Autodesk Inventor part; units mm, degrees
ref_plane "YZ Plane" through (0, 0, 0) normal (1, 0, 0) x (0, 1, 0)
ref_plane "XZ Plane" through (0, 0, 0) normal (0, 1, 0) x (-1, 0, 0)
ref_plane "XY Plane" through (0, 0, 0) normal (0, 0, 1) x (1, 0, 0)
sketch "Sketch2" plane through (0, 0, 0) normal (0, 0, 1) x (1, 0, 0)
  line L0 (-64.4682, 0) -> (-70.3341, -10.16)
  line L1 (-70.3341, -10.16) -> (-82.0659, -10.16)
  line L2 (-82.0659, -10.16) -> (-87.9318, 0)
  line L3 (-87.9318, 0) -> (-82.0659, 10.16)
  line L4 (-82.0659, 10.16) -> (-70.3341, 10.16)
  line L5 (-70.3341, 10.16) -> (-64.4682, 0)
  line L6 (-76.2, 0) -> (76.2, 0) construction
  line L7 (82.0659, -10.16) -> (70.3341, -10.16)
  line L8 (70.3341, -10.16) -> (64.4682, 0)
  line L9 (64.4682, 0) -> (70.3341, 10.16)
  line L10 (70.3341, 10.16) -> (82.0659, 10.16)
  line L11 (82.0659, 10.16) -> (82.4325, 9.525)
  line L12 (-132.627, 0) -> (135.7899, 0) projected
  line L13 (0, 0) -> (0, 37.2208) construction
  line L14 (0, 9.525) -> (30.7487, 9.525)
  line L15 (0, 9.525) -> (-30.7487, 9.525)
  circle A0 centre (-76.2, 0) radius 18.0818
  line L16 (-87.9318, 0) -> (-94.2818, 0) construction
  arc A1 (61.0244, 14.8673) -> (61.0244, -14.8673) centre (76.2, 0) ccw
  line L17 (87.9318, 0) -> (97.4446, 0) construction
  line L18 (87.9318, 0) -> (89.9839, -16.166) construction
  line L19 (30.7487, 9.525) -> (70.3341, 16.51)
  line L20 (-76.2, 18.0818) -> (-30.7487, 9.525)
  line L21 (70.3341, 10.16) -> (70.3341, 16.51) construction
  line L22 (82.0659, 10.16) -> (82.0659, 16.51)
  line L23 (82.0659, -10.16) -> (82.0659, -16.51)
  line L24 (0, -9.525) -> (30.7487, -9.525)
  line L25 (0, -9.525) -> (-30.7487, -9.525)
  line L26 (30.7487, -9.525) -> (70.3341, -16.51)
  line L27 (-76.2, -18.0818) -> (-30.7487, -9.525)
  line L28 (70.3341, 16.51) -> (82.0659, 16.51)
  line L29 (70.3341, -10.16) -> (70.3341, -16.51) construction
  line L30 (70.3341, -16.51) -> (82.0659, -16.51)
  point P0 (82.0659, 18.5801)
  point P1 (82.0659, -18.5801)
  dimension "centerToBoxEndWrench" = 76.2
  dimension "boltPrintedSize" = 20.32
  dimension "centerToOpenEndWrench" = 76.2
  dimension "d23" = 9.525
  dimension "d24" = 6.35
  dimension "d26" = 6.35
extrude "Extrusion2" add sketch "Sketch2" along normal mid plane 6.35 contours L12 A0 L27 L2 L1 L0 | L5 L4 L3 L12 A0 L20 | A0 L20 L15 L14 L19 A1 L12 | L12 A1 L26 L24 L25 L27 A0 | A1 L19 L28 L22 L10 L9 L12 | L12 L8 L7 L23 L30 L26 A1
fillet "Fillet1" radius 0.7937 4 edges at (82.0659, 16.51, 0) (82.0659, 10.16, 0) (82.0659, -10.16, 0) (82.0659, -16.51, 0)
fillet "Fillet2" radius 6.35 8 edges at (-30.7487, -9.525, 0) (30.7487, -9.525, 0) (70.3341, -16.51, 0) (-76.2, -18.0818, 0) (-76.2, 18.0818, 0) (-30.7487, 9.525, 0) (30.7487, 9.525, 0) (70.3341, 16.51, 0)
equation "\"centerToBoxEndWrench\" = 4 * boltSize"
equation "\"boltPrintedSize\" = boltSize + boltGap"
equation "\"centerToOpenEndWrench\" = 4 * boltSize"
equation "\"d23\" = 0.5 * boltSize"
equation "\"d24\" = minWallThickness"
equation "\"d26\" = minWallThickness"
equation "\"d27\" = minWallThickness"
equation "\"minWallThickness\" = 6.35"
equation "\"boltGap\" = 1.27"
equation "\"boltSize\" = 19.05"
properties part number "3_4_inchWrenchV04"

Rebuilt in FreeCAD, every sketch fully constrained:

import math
import FreeCAD as App
import Part
import Sketcher
Q = App.Units.Quantity


def edges_at(feature, points):
    """Names of the edges that pass closest to the given points."""
    edges = feature.Shape.Edges
    near = lambda p: min(range(len(edges)), key=lambda i: edges[i].distToShape(Part.Vertex(*p))[0])
    return sorted({f"Edge{near(p) + 1}" for p in points})

doc = App.newDocument("Part")
params = doc.addObject("Spreadsheet::Sheet", "Params")
for row, (alias, value) in enumerate([
    ("sketch1_height", "0.25 in"),
    ("pad1_length", "0.25 in"),
    ("fillet_radius", "0.031248 in"),
    ("fillet2_radius", "0.25 in"),
], start=1):
    params.set(f"A{row}", alias)
    params.set(f"B{row}", "=" + value)
    params.setAlias(f"B{row}", alias)

body = doc.addObject("PartDesign::Body", "Body")

sketch1 = body.newObject("Sketcher::SketchObject", "Sketch")
sketch1.AttachmentSupport = (doc.getObject("XY_Plane"), [""])
sketch1.MapMode = "FlatFace"
sketch1.addGeometry(Part.LineSegment(App.Vector(-76.2, -18.0818, 0), App.Vector(-30.7487, -9.525, 0)), False)
sketch1.addGeometry(Part.LineSegment(App.Vector(-30.7487, -9.525, 0), App.Vector(30.7487, -9.525, 0)), False)
sketch1.addGeometry(Part.LineSegment(App.Vector(30.7487, -9.525, 0), App.Vector(70.3341, -16.51, 0)), False)
sketch1.addGeometry(Part.LineSegment(App.Vector(70.3341, -16.51, 0), App.Vector(82.0659, -16.51, 0)), False)
sketch1.addGeometry(Part.LineSegment(App.Vector(82.0659, -16.51, 0), App.Vector(82.0659, -10.16, 0)), False)
sketch1.addGeometry(Part.LineSegment(App.Vector(82.0659, -10.16, 0), App.Vector(70.3341, -10.16, 0)), False)
sketch1.addGeometry(Part.LineSegment(App.Vector(70.3341, -10.16, 0), App.Vector(64.4682, 0, 0)), False)
sketch1.addGeometry(Part.LineSegment(App.Vector(64.4682, 0, 0), App.Vector(70.3341, 10.16, 0)), False)
sketch1.addGeometry(Part.LineSegment(App.Vector(70.3341, 10.16, 0), App.Vector(82.0659, 10.16, 0)), False)
sketch1.addGeometry(Part.LineSegment(App.Vector(82.0659, 10.16, 0), App.Vector(82.0659, 16.51, 0)), False)
sketch1.addGeometry(Part.LineSegment(App.Vector(82.0659, 16.51, 0), App.Vector(70.3341, 16.51, 0)), False)
sketch1.addGeometry(Part.LineSegment(App.Vector(70.3341, 16.51, 0), App.Vector(30.7487, 9.525, 0)), False)
sketch1.addGeometry(Part.LineSegment(App.Vector(30.7487, 9.525, 0), App.Vector(-30.7487, 9.525, 0)), False)
sketch1.addGeometry(Part.LineSegment(App.Vector(-30.7487, 9.525, 0), App.Vector(-76.2, 18.0818, 0)), False)
sketch1.addGeometry(Part.ArcOfCircle(Part.Circle(App.Vector(-76.2, 0, 0), App.Vector(0, 0, 1), 18.0818), math.radians(90), math.radians(270)), False)
sketch1.addGeometry(Part.LineSegment(App.Vector(-82.0659, -10.16, 0), App.Vector(-87.9318, 0, 0)), False)
sketch1.addGeometry(Part.LineSegment(App.Vector(-87.9318, 0, 0), App.Vector(-82.0659, 10.16, 0)), False)
sketch1.addGeometry(Part.LineSegment(App.Vector(-82.0659, 10.16, 0), App.Vector(-70.3341, 10.16, 0)), False)
sketch1.addGeometry(Part.LineSegment(App.Vector(-70.3341, 10.16, 0), App.Vector(-64.4682, 0, 0)), False)
sketch1.addGeometry(Part.LineSegment(App.Vector(-64.4682, 0, 0), App.Vector(-70.3341, -10.16, 0)), False)
sketch1.addGeometry(Part.LineSegment(App.Vector(-70.3341, -10.16, 0), App.Vector(-82.0659, -10.16, 0)), False)
sketch1.addConstraint(Sketcher.Constraint("Coincident", 0, 2, 1, 1))
sketch1.addConstraint(Sketcher.Constraint("Coincident", 1, 2, 2, 1))
sketch1.addConstraint(Sketcher.Constraint("Coincident", 2, 2, 3, 1))
sketch1.addConstraint(Sketcher.Constraint("Coincident", 3, 2, 4, 1))
sketch1.addConstraint(Sketcher.Constraint("Coincident", 4, 2, 5, 1))
sketch1.addConstraint(Sketcher.Constraint("Coincident", 5, 2, 6, 1))
sketch1.addConstraint(Sketcher.Constraint("Coincident", 6, 2, 7, 1))
sketch1.addConstraint(Sketcher.Constraint("Coincident", 7, 2, 8, 1))
sketch1.addConstraint(Sketcher.Constraint("Coincident", 8, 2, 9, 1))
sketch1.addConstraint(Sketcher.Constraint("Coincident", 9, 2, 10, 1))
sketch1.addConstraint(Sketcher.Constraint("Coincident", 10, 2, 11, 1))
sketch1.addConstraint(Sketcher.Constraint("Coincident", 11, 2, 12, 1))
sketch1.addConstraint(Sketcher.Constraint("Coincident", 12, 2, 13, 1))
sketch1.addConstraint(Sketcher.Constraint("Coincident", 13, 2, 14, 1))
sketch1.addConstraint(Sketcher.Constraint("Coincident", 14, 2, 0, 1))
sketch1.addConstraint(Sketcher.Constraint("Coincident", 15, 2, 16, 1))
sketch1.addConstraint(Sketcher.Constraint("Coincident", 16, 2, 17, 1))
sketch1.addConstraint(Sketcher.Constraint("Coincident", 17, 2, 18, 1))
sketch1.addConstraint(Sketcher.Constraint("Coincident", 18, 2, 19, 1))
sketch1.addConstraint(Sketcher.Constraint("Coincident", 19, 2, 20, 1))
sketch1.addConstraint(Sketcher.Constraint("Coincident", 20, 2, 15, 1))
sketch1.addConstraint(Sketcher.Constraint("Horizontal", 1))
sketch1.addConstraint(Sketcher.Constraint("Horizontal", 3))
sketch1.addConstraint(Sketcher.Constraint("Vertical", 4))
sketch1.addConstraint(Sketcher.Constraint("Horizontal", 5))
sketch1.addConstraint(Sketcher.Constraint("Horizontal", 8))
sketch1.addConstraint(Sketcher.Constraint("Vertical", 9))
sketch1.addConstraint(Sketcher.Constraint("Horizontal", 10))
sketch1.addConstraint(Sketcher.Constraint("Horizontal", 12))
sketch1.addConstraint(Sketcher.Constraint("Horizontal", 17))
sketch1.addConstraint(Sketcher.Constraint("Horizontal", 20))
sketch1.addConstraint(Sketcher.Constraint("Symmetric", 0, 2, 11, 2, -1, 1))
sketch1.addConstraint(Sketcher.Constraint("Symmetric", 4, 2, 16, 2, -1, 1))
sketch1.addConstraint(Sketcher.Constraint("Symmetric", 6, 2, 18, 2, -1, 1))
sketch1.addConstraint(Sketcher.Constraint("Symmetric", 7, 2, 19, 2, -1, 1))
sketch1.addConstraint(Sketcher.Constraint("Symmetric", 8, 2, 16, 2, -2))
sketch1.addConstraint(Sketcher.Constraint("Symmetric", 2, 2, 10, 2, -1))
sketch1.addConstraint(Sketcher.Constraint("Symmetric", 13, 2, 14, 2, -1))
sketch1.addConstraint(Sketcher.Constraint("PointOnObject", 6, 2, -1))
sketch1.addConstraint(Sketcher.Constraint("PointOnObject", 15, 2, -1))
sketch1.addConstraint(Sketcher.Constraint("Parallel", 6, 15))
sketch1.addConstraint(Sketcher.Constraint("Parallel", 7, 16))
sketch1.addConstraint(Sketcher.Constraint("Parallel", 15, 18))
sketch1.addConstraint(Sketcher.Constraint("Vertical", 2, 2, 5, 2))
sketch1.addConstraint(Sketcher.Constraint("Vertical", 5, 2, 7, 2))
sketch1.addConstraint(Sketcher.Constraint("Vertical", 1, 2, 11, 2))
sketch1.addConstraint(Sketcher.Constraint("Vertical", 0, 2, 12, 2))
sketch1.addConstraint(Sketcher.Constraint("Vertical", 14, 3, 13, 2))
sketch1.addConstraint(Sketcher.Constraint("DistanceX", 14, 3, -1, 1, Q("3 in")))
sketch1.addConstraint(Sketcher.Constraint("DistanceY", 4, 1, 4, 2, Q("0.25 in")))
sketch1.addConstraint(Sketcher.Constraint("DistanceY", 5, 2, 7, 2, Q("0.8 in")))
sketch1.addConstraint(Sketcher.Constraint("DistanceY", 0, 2, -1, 1, Q("0.375 in")))
sketch1.addConstraint(Sketcher.Constraint("Angle", 6, Q("120 deg")))
sketch1.addConstraint(Sketcher.Constraint("Radius", 14, Q("18.0818 mm")))
sketch1.addConstraint(Sketcher.Constraint("DistanceX", 1, 1, 1, 2, Q("61.4974 mm")))
sketch1.addConstraint(Sketcher.Constraint("DistanceX", 3, 1, 3, 2, Q("11.7318 mm")))
sketch1.addConstraint(Sketcher.Constraint("DistanceX", 12, 2, 6, 2, Q("3.7487 in")))
sketch1.setExpression("Constraints[49]", "Params.sketch1_height")
pad1 = body.newObject("PartDesign::Pad", "Pad")
pad1.Profile = sketch1
pad1.setExpression("Length", "Params.pad1_length")
pad1.Midplane = True
doc.recompute()

fillet = body.newObject("PartDesign::Fillet", "Fillet")
fillet.Base = (pad1, edges_at(pad1, [
    (82.066, 16.51, 0),
    (82.066, 10.16, 0),
    (82.066, -10.16, 0),
    (82.066, -16.51, 0),
]))
fillet.setExpression("Radius", "Params.fillet_radius")
doc.recompute()

fillet2 = body.newObject("PartDesign::Fillet", "Fillet001")
fillet2.Base = (fillet, edges_at(fillet, [
    (-30.749, -9.525, 0),
    (30.749, -9.525, 0),
    (70.334, -16.51, 0),
    (-76.2, -18.082, 0),
    (-76.2, 18.082, 0),
    (-30.749, 9.525, 0),
    (30.749, 9.525, 0),
    (70.334, 16.51, 0),
]))
fillet2.setExpression("Radius", "Params.fillet2_radius")

doc.recompute()
